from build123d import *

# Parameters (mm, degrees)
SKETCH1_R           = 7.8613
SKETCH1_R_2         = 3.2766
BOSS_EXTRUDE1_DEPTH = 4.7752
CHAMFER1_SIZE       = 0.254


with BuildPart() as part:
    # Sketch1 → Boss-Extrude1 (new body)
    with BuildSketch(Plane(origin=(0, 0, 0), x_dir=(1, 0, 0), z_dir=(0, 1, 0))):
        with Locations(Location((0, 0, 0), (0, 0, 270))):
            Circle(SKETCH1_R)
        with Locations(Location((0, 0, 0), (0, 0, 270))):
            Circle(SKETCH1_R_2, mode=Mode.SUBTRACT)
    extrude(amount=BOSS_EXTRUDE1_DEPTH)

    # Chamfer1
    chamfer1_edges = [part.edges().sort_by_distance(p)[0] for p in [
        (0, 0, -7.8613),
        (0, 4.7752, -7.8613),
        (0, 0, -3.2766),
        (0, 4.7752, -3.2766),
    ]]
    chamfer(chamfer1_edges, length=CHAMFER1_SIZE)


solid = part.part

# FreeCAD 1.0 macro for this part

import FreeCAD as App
import Part
import Sketcher
Q = App.Units.Quantity


def edges_at(feature, points):
    """Names of the edges that pass closest to the given points."""
    edges = feature.Shape.Edges
    near = lambda p: min(range(len(edges)), key=lambda i: edges[i].distToShape(Part.Vertex(*p))[0])
    return sorted({f"Edge{near(p) + 1}" for p in points})

doc = App.newDocument("Part")
body = doc.addObject("PartDesign::Body", "Body")

sketch1 = body.newObject("Sketcher::SketchObject", "Sketch")
sketch1.AttachmentSupport = (doc.getObject("XZ_Plane"), [""])
sketch1.MapMode = "FlatFace"
sketch1.addGeometry(Part.Circle(App.Vector(0, 0, 0), App.Vector(0, 0, 1), 7.9), False)
sketch1.addGeometry(Part.Circle(App.Vector(0, 0, 0), App.Vector(0, 0, 1), 3.3), False)
sketch1.addConstraint(Sketcher.Constraint("Coincident", 0, 3, -1, 1))
sketch1.addConstraint(Sketcher.Constraint("Coincident", 1, 3, -1, 1))
sketch1.addConstraint(Sketcher.Constraint("Diameter", 0, Q("0.619 in")))
sketch1.addConstraint(Sketcher.Constraint("Diameter", 1, Q("0.258 in")))
pad1 = body.newObject("PartDesign::Pad", "Pad")
pad1.Profile = sketch1
pad1.Length = Q("0.188 in")
pad1.Reversed = True
doc.recompute()

chamfer = body.newObject("PartDesign::Chamfer", "Chamfer")
chamfer.Base = (pad1, edges_at(pad1, [
    (0, 0, -7.861),
    (0, 4.775, -7.861),
    (0, 0, -3.277),
    (0, 4.775, -3.277),
]))
chamfer.Size = Q("0.01 in")

doc.recompute()
